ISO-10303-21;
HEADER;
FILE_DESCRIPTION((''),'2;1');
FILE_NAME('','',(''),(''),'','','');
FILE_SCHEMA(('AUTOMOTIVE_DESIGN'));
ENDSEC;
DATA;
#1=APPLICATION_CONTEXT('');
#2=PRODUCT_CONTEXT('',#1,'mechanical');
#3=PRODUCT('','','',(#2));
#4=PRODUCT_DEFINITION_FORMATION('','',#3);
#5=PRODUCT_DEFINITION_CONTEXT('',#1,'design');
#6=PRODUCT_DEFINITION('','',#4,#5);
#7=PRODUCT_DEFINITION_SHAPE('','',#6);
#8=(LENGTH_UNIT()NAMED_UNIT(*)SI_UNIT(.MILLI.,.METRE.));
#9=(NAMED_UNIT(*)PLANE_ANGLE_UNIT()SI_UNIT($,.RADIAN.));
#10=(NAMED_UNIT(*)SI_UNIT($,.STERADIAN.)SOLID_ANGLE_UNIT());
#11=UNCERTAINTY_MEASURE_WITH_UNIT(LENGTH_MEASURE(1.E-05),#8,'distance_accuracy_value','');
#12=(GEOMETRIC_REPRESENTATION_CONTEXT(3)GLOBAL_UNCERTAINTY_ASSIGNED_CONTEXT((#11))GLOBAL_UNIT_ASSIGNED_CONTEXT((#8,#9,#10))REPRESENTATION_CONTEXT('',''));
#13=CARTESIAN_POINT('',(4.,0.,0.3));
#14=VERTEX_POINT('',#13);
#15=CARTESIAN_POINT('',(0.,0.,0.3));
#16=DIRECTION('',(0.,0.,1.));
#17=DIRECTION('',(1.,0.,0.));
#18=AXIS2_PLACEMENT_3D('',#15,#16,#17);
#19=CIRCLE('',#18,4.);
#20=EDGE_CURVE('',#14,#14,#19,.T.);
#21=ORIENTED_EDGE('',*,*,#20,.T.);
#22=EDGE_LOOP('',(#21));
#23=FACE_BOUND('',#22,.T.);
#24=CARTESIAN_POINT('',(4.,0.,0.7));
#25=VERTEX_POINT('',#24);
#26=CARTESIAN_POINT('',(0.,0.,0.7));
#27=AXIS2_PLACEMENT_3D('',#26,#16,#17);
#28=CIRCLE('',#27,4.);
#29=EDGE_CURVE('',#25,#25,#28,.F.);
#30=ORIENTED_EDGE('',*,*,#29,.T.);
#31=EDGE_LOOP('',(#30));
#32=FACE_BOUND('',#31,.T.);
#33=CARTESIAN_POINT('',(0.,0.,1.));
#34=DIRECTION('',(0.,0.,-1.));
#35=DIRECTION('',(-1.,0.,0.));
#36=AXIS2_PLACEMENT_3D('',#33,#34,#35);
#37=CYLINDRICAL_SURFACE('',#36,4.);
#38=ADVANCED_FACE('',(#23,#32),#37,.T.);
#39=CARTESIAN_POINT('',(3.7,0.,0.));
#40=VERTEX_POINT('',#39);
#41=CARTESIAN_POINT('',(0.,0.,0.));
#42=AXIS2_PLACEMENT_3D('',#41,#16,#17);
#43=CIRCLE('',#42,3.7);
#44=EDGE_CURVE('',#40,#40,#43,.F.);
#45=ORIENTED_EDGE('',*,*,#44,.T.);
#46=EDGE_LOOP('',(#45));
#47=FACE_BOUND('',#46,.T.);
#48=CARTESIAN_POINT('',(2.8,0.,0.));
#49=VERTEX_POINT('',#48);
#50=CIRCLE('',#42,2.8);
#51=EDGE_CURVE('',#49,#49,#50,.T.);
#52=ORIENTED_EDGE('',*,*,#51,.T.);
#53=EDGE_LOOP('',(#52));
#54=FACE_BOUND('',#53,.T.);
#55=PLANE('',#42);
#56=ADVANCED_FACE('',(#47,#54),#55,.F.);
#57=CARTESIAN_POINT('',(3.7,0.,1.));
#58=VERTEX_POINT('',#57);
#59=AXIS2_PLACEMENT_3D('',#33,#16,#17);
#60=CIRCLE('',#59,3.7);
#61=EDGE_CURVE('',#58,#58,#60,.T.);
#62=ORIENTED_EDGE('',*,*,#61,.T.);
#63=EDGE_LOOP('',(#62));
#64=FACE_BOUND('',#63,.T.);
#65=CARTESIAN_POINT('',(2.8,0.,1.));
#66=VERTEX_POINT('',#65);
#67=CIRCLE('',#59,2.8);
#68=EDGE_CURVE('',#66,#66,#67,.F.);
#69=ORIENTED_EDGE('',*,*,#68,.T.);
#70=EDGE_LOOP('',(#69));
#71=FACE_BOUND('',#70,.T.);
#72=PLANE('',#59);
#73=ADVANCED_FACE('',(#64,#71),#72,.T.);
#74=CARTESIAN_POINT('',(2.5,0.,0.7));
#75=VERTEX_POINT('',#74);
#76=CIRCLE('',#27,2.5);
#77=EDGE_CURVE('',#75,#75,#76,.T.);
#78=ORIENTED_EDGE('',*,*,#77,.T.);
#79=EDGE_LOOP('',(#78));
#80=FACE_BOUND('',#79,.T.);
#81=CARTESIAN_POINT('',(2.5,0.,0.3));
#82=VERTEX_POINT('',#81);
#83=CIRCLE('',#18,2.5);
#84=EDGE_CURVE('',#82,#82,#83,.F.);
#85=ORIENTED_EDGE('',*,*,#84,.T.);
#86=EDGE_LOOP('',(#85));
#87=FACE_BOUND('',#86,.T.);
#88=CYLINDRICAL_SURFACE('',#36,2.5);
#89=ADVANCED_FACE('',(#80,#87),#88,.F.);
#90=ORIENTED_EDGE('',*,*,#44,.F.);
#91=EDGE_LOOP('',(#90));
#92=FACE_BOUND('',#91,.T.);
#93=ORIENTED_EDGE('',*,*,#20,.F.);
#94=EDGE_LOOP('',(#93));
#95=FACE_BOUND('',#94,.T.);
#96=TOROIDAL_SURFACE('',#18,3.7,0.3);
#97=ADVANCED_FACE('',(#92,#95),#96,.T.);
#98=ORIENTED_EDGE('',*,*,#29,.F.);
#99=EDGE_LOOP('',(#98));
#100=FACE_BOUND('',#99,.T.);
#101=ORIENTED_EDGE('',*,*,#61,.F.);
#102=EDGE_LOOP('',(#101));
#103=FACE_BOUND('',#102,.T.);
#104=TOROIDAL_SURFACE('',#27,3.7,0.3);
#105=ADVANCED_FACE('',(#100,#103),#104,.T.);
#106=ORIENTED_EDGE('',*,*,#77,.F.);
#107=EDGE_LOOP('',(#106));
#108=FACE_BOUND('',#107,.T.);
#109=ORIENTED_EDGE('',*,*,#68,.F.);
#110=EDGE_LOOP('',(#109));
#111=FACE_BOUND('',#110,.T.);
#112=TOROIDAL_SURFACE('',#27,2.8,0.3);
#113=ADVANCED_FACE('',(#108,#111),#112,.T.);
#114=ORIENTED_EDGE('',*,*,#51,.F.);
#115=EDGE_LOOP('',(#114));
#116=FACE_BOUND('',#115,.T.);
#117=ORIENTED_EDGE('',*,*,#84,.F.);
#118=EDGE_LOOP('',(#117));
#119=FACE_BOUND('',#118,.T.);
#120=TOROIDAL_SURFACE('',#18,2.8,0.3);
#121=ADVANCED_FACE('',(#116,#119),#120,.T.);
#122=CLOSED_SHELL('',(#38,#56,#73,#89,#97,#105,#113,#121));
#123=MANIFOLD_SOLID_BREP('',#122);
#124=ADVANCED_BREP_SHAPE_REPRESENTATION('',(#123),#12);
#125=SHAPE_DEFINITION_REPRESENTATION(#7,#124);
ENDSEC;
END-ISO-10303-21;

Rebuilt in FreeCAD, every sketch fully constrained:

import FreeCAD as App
import Part
import Sketcher
Q = App.Units.Quantity


def edges_at(feature, points):
    """Names of the edges that pass closest to the given points."""
    edges = feature.Shape.Edges
    near = lambda p: min(range(len(edges)), key=lambda i: edges[i].distToShape(Part.Vertex(*p))[0])
    return sorted({f"Edge{near(p) + 1}" for p in points})

doc = App.newDocument("Part")
body = doc.addObject("PartDesign::Body", "Body")

# Sketch on XY plane
sketch1 = body.newObject("Sketcher::SketchObject", "Sketch")
sketch1.AttachmentSupport = (doc.getObject("XY_Plane"), [""])
sketch1.MapMode = "FlatFace"
sketch1.addGeometry(Part.Circle(App.Vector(0, 0, 0), App.Vector(0, 0, 1), 4), False)
sketch1.addGeometry(Part.Circle(App.Vector(0, 0, 0), App.Vector(0, 0, 1), 2.5), False)
sketch1.addConstraint(Sketcher.Constraint("Coincident", 0, 3, -1, 1))
sketch1.addConstraint(Sketcher.Constraint("Coincident", 1, 3, -1, 1))
sketch1.addConstraint(Sketcher.Constraint("Diameter", 0, Q("8 mm")))
sketch1.addConstraint(Sketcher.Constraint("Diameter", 1, Q("5 mm")))
pad1 = body.newObject("PartDesign::Pad", "Pad")
pad1.Profile = sketch1
pad1.Length = 1
doc.recompute()

fillet = body.newObject("PartDesign::Fillet", "Fillet")
fillet.Base = (pad1, edges_at(pad1, [
    (-4, 0, 0),
    (-4, 0, 1),
    (-2.5, 0, 0),
    (-2.5, 0, 1),
]))
fillet.Radius = 0.3

doc.recompute()
